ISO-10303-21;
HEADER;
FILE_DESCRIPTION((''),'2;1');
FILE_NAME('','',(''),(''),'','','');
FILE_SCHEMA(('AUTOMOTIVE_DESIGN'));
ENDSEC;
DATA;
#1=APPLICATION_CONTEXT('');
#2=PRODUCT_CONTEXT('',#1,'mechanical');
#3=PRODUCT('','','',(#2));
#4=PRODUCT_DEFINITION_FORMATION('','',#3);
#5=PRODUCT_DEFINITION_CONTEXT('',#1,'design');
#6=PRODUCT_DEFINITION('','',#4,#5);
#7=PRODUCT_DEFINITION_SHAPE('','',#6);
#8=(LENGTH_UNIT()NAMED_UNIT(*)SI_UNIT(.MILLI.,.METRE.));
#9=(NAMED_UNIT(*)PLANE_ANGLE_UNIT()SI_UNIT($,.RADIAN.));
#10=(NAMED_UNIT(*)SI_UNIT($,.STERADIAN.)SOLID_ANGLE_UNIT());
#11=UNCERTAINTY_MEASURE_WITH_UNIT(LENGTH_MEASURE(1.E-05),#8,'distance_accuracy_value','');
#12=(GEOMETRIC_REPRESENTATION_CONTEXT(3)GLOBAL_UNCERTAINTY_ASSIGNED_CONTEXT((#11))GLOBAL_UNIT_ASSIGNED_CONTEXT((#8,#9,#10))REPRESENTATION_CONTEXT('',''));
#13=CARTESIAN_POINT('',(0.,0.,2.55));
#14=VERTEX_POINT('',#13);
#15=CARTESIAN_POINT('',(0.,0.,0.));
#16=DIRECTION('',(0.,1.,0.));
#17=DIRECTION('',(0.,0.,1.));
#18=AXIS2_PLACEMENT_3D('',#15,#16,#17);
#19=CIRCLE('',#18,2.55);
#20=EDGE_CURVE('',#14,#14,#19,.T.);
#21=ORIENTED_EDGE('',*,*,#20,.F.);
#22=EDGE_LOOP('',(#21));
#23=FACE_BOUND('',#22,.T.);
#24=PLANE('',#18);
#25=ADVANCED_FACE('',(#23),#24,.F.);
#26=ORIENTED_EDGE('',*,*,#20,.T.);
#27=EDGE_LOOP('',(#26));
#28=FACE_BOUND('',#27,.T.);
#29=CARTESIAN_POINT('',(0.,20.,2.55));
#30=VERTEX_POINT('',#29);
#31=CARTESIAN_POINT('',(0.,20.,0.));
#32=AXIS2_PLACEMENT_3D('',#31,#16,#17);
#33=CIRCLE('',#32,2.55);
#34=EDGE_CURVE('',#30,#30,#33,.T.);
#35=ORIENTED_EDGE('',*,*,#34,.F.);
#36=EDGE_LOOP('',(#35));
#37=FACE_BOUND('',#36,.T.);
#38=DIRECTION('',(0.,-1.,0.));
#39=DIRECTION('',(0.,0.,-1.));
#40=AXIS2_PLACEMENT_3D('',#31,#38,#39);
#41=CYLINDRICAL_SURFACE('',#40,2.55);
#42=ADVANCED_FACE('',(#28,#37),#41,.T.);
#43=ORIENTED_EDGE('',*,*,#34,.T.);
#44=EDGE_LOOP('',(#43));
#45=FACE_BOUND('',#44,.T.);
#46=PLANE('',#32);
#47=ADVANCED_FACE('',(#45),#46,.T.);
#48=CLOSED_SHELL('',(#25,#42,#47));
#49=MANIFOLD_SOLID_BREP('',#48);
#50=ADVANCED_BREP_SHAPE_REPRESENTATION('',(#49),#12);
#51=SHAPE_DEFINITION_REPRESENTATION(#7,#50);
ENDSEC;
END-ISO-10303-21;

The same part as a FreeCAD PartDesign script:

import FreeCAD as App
import Part
import Sketcher

V = App.Vector
Q = App.Units.Quantity

doc = App.newDocument("Part")
body = doc.addObject("PartDesign::Body", "Body")

sketch1 = body.newObject("Sketcher::SketchObject", "Sketch")
sketch1.AttachmentSupport = (doc.getObject("XZ_Plane"), [""])
sketch1.MapMode = "FlatFace"
sketch1.addGeometry(Part.Circle(V(0, 0, 0), V(0, 0, 1), 2.5), False)
sketch1.addConstraint(Sketcher.Constraint("Coincident", 0, 3, -1, 1))
sketch1.addConstraint(Sketcher.Constraint("Diameter", 0, Q("5.1 mm")))
pad1 = body.newObject("PartDesign::Pad", "Pad")
pad1.Profile = sketch1
pad1.Length = 20
pad1.Reversed = True

doc.recompute()
